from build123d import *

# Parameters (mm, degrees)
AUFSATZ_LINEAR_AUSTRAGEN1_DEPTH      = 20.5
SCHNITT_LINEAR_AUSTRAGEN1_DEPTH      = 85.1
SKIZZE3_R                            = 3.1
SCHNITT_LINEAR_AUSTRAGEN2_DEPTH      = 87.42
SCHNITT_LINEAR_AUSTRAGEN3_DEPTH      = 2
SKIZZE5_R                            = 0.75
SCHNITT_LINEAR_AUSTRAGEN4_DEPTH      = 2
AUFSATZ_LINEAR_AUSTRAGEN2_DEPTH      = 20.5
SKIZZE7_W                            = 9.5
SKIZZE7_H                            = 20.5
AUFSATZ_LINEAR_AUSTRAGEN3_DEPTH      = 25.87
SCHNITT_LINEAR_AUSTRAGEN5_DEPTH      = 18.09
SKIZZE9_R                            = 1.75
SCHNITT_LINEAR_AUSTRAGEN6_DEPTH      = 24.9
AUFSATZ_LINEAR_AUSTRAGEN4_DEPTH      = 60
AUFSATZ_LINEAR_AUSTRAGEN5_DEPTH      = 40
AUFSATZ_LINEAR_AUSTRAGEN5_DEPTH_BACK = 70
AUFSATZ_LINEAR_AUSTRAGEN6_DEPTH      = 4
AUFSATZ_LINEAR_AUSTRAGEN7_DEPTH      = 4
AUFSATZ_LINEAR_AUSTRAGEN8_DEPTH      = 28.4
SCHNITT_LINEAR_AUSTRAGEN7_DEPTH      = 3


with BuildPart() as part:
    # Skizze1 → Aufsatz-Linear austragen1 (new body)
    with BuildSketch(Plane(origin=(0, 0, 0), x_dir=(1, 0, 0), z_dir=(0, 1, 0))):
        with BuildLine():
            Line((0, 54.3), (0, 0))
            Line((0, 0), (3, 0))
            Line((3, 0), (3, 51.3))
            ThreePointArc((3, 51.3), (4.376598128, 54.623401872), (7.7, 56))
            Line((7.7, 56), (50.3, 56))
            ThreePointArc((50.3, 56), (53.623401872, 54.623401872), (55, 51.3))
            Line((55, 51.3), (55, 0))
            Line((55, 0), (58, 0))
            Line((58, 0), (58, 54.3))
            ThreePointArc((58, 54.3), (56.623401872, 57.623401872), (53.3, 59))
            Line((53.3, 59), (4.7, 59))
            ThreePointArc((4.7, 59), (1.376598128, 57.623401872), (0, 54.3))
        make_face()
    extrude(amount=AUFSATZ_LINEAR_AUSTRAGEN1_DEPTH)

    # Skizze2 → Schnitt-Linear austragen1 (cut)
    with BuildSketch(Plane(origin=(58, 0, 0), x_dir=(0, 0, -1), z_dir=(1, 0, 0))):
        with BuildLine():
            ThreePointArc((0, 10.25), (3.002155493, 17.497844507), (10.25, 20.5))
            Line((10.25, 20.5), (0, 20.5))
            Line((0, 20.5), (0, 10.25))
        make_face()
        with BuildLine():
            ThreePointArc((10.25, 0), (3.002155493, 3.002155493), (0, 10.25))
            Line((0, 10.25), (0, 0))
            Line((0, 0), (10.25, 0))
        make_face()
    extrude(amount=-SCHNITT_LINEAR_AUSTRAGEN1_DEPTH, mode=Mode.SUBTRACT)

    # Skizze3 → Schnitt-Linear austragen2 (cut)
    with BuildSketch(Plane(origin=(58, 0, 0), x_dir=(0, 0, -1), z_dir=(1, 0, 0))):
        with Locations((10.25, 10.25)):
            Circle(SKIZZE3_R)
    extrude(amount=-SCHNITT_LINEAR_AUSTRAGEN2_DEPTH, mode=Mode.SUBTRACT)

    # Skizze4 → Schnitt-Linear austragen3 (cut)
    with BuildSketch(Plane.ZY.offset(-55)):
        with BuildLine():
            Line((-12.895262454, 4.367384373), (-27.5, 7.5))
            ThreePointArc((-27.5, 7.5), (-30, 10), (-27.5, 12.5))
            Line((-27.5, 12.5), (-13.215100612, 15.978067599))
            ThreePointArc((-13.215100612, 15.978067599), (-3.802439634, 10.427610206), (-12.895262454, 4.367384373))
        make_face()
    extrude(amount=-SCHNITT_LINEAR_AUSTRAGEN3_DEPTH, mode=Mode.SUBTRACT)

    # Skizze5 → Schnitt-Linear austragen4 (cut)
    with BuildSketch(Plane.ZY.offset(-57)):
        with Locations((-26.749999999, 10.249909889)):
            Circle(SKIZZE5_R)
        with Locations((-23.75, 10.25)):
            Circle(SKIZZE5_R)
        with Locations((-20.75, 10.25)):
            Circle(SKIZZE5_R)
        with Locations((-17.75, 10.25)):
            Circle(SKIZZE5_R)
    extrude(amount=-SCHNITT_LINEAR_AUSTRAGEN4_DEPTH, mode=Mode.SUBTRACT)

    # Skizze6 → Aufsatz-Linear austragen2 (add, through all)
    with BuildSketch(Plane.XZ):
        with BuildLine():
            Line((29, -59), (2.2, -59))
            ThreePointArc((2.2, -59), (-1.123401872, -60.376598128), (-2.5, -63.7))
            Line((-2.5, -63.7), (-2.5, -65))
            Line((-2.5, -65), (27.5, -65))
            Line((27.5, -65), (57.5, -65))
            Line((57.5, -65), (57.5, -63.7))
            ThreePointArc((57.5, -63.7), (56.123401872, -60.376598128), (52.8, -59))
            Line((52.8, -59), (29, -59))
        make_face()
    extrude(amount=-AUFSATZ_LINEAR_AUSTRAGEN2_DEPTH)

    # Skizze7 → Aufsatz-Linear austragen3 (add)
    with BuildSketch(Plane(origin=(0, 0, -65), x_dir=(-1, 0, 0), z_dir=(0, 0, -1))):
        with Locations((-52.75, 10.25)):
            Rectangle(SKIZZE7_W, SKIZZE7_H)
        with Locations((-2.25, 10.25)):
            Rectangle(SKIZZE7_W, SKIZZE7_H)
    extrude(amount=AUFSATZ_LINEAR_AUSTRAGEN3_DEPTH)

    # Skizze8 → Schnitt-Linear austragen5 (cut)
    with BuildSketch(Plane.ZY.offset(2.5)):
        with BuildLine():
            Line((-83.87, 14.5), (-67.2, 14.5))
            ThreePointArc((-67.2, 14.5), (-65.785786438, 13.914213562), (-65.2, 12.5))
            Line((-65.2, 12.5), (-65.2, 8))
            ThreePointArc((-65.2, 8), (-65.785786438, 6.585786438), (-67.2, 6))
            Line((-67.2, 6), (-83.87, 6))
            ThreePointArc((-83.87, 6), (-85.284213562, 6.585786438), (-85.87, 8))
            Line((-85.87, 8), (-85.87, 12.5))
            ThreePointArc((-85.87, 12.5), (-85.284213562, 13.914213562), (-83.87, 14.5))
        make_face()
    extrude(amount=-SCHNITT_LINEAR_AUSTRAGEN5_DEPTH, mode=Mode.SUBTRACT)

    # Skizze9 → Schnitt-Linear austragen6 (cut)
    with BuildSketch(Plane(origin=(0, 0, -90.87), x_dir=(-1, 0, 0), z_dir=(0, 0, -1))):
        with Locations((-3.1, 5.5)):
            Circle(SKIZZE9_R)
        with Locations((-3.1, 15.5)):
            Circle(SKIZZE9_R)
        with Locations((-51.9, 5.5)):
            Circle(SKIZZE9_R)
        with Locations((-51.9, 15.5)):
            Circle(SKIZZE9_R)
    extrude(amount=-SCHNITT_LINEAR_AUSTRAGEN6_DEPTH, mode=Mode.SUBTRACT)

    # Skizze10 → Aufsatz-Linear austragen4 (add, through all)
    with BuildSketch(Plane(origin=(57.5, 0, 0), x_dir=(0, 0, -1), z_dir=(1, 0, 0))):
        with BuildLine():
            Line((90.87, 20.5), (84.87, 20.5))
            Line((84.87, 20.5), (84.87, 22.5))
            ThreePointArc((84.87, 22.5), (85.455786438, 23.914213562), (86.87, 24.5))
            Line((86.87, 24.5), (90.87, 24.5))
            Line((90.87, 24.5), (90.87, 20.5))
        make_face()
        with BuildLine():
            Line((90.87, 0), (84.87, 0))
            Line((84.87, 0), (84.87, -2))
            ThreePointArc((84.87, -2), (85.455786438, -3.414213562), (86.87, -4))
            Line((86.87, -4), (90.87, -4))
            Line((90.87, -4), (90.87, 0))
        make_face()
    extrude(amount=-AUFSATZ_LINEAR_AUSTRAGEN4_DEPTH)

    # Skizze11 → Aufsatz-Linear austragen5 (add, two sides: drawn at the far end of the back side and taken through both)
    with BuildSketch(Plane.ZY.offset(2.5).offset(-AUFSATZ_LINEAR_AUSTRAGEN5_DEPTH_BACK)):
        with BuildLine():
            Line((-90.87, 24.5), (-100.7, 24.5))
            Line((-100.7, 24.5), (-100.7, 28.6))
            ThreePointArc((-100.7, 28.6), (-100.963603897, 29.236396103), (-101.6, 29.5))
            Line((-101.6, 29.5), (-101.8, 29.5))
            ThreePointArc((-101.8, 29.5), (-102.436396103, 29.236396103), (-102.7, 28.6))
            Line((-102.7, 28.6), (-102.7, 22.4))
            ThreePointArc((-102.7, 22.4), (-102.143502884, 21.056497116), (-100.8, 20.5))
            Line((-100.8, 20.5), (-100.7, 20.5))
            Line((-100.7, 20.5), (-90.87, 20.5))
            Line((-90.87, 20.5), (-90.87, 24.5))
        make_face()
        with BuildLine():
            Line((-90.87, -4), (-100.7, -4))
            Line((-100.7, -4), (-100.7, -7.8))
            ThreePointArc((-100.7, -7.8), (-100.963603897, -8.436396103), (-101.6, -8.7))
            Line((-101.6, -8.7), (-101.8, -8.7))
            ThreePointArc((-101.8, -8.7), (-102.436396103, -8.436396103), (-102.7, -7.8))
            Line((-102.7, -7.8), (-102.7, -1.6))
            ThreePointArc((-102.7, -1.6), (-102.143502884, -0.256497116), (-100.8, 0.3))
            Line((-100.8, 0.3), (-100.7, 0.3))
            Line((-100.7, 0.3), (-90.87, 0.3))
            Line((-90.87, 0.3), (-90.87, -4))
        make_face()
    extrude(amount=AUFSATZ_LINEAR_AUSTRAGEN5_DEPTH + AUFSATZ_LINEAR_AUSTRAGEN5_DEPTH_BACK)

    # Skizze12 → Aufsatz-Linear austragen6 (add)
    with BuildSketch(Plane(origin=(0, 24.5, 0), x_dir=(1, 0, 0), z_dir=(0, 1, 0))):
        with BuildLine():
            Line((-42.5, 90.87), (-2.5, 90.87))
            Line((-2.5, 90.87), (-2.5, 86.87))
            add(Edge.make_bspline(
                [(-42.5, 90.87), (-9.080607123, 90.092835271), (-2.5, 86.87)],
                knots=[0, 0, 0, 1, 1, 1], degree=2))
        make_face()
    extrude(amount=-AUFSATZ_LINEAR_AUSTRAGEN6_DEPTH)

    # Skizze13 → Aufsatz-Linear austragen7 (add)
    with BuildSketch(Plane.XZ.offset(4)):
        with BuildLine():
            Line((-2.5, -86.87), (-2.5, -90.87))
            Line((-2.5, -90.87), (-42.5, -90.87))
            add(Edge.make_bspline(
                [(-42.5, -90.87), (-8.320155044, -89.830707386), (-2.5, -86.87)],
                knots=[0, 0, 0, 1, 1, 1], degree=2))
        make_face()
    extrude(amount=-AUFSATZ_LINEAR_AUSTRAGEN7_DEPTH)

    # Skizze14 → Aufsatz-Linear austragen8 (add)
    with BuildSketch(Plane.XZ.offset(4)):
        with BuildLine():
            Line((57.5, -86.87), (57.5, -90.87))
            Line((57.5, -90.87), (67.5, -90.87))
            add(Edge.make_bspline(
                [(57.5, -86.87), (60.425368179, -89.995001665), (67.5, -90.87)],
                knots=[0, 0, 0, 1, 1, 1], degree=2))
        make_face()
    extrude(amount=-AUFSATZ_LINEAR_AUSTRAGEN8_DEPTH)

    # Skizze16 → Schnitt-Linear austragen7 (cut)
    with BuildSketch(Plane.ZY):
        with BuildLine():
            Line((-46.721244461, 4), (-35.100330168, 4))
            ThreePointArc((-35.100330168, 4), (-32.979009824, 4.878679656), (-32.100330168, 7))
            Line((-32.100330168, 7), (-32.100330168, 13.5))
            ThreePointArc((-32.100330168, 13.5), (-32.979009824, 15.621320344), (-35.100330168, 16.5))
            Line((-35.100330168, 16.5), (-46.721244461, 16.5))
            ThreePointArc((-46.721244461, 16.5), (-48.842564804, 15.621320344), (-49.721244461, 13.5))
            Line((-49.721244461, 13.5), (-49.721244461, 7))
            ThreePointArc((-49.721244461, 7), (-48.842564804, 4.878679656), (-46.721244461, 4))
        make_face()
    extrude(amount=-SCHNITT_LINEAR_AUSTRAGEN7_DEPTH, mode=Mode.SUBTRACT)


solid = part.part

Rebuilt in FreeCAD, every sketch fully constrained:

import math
import FreeCAD as App
import Part
import Sketcher

V = App.Vector

doc = App.newDocument("Part")
body = doc.addObject("PartDesign::Body", "Body")

sketch1 = body.newObject("Sketcher::SketchObject", "Sketch")
sketch1.AttachmentSupport = (doc.getObject("XZ_Plane"), [""])
sketch1.MapMode = "FlatFace"
sketch1.addGeometry(Part.LineSegment(V(0, -54.3, 0), V(0, 0, 0)), False)
sketch1.addGeometry(Part.LineSegment(V(0, 0, 0), V(3, 0, 0)), False)
sketch1.addGeometry(Part.LineSegment(V(3, 0, 0), V(3, -51.3, 0)), False)
sketch1.addGeometry(Part.ArcOfCircle(Part.Circle(V(7.7, -51.3, 0), V(0, 0, 1), 4.7), math.radians(180), math.radians(270)), False)
sketch1.addGeometry(Part.LineSegment(V(7.7, -56, 0), V(50.3, -56, 0)), False)
sketch1.addGeometry(Part.ArcOfCircle(Part.Circle(V(50.3, -51.3, 0), V(0, 0, 1), 4.7), math.radians(-90), math.radians(0)), False)
sketch1.addGeometry(Part.LineSegment(V(55, -51.3, 0), V(55, 0, 0)), False)
sketch1.addGeometry(Part.LineSegment(V(55, 0, 0), V(58, 0, 0)), False)
sketch1.addGeometry(Part.LineSegment(V(58, 0, 0), V(58, -54.3, 0)), False)
sketch1.addGeometry(Part.ArcOfCircle(Part.Circle(V(53.3, -54.3, 0), V(0, 0, 1), 4.7), math.radians(-90), math.radians(0)), False)
sketch1.addGeometry(Part.LineSegment(V(53.3, -59, 0), V(4.7, -59, 0)), False)
sketch1.addGeometry(Part.ArcOfCircle(Part.Circle(V(4.7, -54.3, 0), V(0, 0, 1), 4.7), math.radians(180), math.radians(270)), False)
sketch1.addConstraint(Sketcher.Constraint("Coincident", 0, 2, 1, 1))
sketch1.addConstraint(Sketcher.Constraint("Coincident", 1, 2, 2, 1))
sketch1.addConstraint(Sketcher.Constraint("Tangent", 2, 2, 3, 1))
sketch1.addConstraint(Sketcher.Constraint("Tangent", 3, 2, 4, 1))
sketch1.addConstraint(Sketcher.Constraint("Tangent", 4, 2, 5, 1))
sketch1.addConstraint(Sketcher.Constraint("Tangent", 5, 2, 6, 1))
sketch1.addConstraint(Sketcher.Constraint("Coincident", 6, 2, 7, 1))
sketch1.addConstraint(Sketcher.Constraint("Coincident", 7, 2, 8, 1))
sketch1.addConstraint(Sketcher.Constraint("Tangent", 8, 2, 9, 2))
sketch1.addConstraint(Sketcher.Constraint("Tangent", 9, 1, 10, 1))
sketch1.addConstraint(Sketcher.Constraint("Tangent", 10, 2, 11, 2))
sketch1.addConstraint(Sketcher.Constraint("Tangent", 11, 1, 0, 1))
sketch1.addConstraint(Sketcher.Constraint("Vertical", 0))
sketch1.addConstraint(Sketcher.Constraint("Horizontal", 1))
sketch1.addConstraint(Sketcher.Constraint("Vertical", 2))
sketch1.addConstraint(Sketcher.Constraint("Horizontal", 4))
sketch1.addConstraint(Sketcher.Constraint("Vertical", 6))
sketch1.addConstraint(Sketcher.Constraint("Horizontal", 7))
sketch1.addConstraint(Sketcher.Constraint("Vertical", 8))
sketch1.addConstraint(Sketcher.Constraint("Horizontal", 10))
sketch1.addConstraint(Sketcher.Constraint("Coincident", 0, 2, -1, 1))
sketch1.addConstraint(Sketcher.Constraint("Equal", 3, 5))
sketch1.addConstraint(Sketcher.Constraint("Equal", 5, 9))
sketch1.addConstraint(Sketcher.Constraint("Equal", 9, 11))
sketch1.addConstraint(Sketcher.Constraint("PointOnObject", 6, 2, -1))
sketch1.addConstraint(Sketcher.Constraint("Equal", 1, 7))
sketch1.addConstraint(Sketcher.Constraint("Radius", 3, 4.7))
sketch1.addConstraint(Sketcher.Constraint("DistanceX", 1, 1, 1, 2, 3.0))
sketch1.addConstraint(Sketcher.Constraint("DistanceX", 4, 1, 4, 2, 42.6))
sketch1.addConstraint(Sketcher.Constraint("DistanceY", 0, 1, 0, 2, 54.3))
sketch1.addConstraint(Sketcher.Constraint("DistanceY", 2, 2, 2, 1, 51.3))
pad1 = body.newObject("PartDesign::Pad", "Pad")
pad1.Profile = sketch1
pad1.Length = 20.5
pad1.Reversed = True

sketch2 = body.newObject("Sketcher::SketchObject", "Sketch001")
sketch2.AttachmentSupport = (doc.getObject("YZ_Plane"), [""])
sketch2.MapMode = "FlatFace"
sketch2.AttachmentOffset = App.Placement(V(0, 0, 58), App.Rotation())
sketch2.addGeometry(Part.ArcOfCircle(Part.Circle(V(10, -10, 0), V(0, 0, 1), 10), math.radians(0), math.radians(90)), False)
sketch2.addGeometry(Part.LineSegment(V(20, -10, 0), V(20, 0, 0)), False)
sketch2.addGeometry(Part.LineSegment(V(20, 0, 0), V(10, 0, 0)), False)
sketch2.addGeometry(Part.ArcOfCircle(Part.Circle(V(10, -10, 0), V(0, 0, 1), 10), math.radians(90), math.radians(180)), False)
sketch2.addGeometry(Part.LineSegment(V(10, 0, 0), V(0, 0, 0)), False)
sketch2.addGeometry(Part.LineSegment(V(0, 0, 0), V(0, -10, 0)), False)
sketch2.addConstraint(Sketcher.Constraint("Tangent", 0, 1, 1, 1))
sketch2.addConstraint(Sketcher.Constraint("Coincident", 1, 2, 2, 1))
sketch2.addConstraint(Sketcher.Constraint("Tangent", 2, 2, 0, 2))
sketch2.addConstraint(Sketcher.Constraint("Tangent", 3, 1, 4, 1))
sketch2.addConstraint(Sketcher.Constraint("Coincident", 4, 2, 5, 1))
sketch2.addConstraint(Sketcher.Constraint("Tangent", 5, 2, 3, 2))
sketch2.addConstraint(Sketcher.Constraint("Vertical", 1))
sketch2.addConstraint(Sketcher.Constraint("Horizontal", 2))
sketch2.addConstraint(Sketcher.Constraint("Horizontal", 4))
sketch2.addConstraint(Sketcher.Constraint("Vertical", 5))
sketch2.addConstraint(Sketcher.Constraint("Coincident", 4, 2, -1, 1))
sketch2.addConstraint(Sketcher.Constraint("Coincident", 3, 3, 0, 3))
sketch2.addConstraint(Sketcher.Constraint("Equal", 0, 3))
sketch2.addConstraint(Sketcher.Constraint("Radius", 0, 10.25))
pocket1 = body.newObject("PartDesign::Pocket", "Pocket")
pocket1.Profile = sketch2
pocket1.Length = 85.1

sketch3 = body.newObject("Sketcher::SketchObject", "Sketch002")
sketch3.AttachmentSupport = (doc.getObject("YZ_Plane"), [""])
sketch3.MapMode = "FlatFace"
sketch3.AttachmentOffset = App.Placement(V(0, 0, 58), App.Rotation())
sketch3.addGeometry(Part.Circle(V(10.2, -10.2, 0), V(0, 0, 1), 3.1), False)
sketch3.addConstraint(Sketcher.Constraint("Diameter", 0, 6.2))
sketch3.addConstraint(Sketcher.Constraint("DistanceX", -1, 1, 0, 3, 10.25))
sketch3.addConstraint(Sketcher.Constraint("DistanceY", 0, 3, -1, 1, 10.25))
pocket2 = body.newObject("PartDesign::Pocket", "Pocket001")
pocket2.Profile = sketch3
pocket2.Length = 87.42

sketch4 = body.newObject("Sketcher::SketchObject", "Sketch003")
sketch4.AttachmentSupport = (doc.getObject("YZ_Plane"), [""])
sketch4.MapMode = "FlatFace"
sketch4.AttachmentOffset = App.Placement(V(0, 0, 55), App.Rotation())
sketch4.addGeometry(Part.LineSegment(V(7.5, -27.5, 0), V(4.4, -12.9, 0)), False)
sketch4.addGeometry(Part.ArcOfCircle(Part.Circle(V(10.2, -10.2, 0), V(0, 0, 1), 6.5), math.radians(-27), math.radians(204)), False)
sketch4.addGeometry(Part.LineSegment(V(16, -13.2, 0), V(12.5, -27.5, 0)), False)
sketch4.addGeometry(Part.ArcOfCircle(Part.Circle(V(10, -27.5, 0), V(0, 0, 1), 2.5), math.radians(180), math.radians(360)), False)
sketch4.addConstraint(Sketcher.Constraint("Coincident", 0, 2, 1, 2))
sketch4.addConstraint(Sketcher.Constraint("Coincident", 1, 1, 2, 1))
sketch4.addConstraint(Sketcher.Constraint("Coincident", 2, 2, 3, 2))
sketch4.addConstraint(Sketcher.Constraint("Coincident", 3, 1, 0, 1))
sketch4.addConstraint(Sketcher.Constraint("Horizontal", 3, 3, 2, 2))
sketch4.addConstraint(Sketcher.Constraint("Horizontal", 2, 2, 3, 1))
sketch4.addConstraint(Sketcher.Constraint("Radius", 3, 2.5))
sketch4.addConstraint(Sketcher.Constraint("DistanceX", -1, 1, 3, 3, 10.0))
sketch4.addConstraint(Sketcher.Constraint("DistanceY", 3, 3, -1, 1, 27.5))
sketch4.addConstraint(Sketcher.Constraint("DistanceX", -1, 1, 1, 3, 10.25))
sketch4.addConstraint(Sketcher.Constraint("DistanceY", 1, 3, -1, 1, 10.25))
sketch4.addConstraint(Sketcher.Constraint("Radius", 1, 6.450006))
sketch4.addConstraint(Sketcher.Constraint("DistanceY", 1, 1, -1, 1, 13.215101))
sketch4.addConstraint(Sketcher.Constraint("DistanceY", 1, 1, 0, 2, 0.319838))
pocket3 = body.newObject("PartDesign::Pocket", "Pocket002")
pocket3.Profile = sketch4
pocket3.Length = 2
pocket3.Reversed = True

sketch5 = body.newObject("Sketcher::SketchObject", "Sketch004")
sketch5.AttachmentSupport = (doc.getObject("YZ_Plane"), [""])
sketch5.MapMode = "FlatFace"
sketch5.AttachmentOffset = App.Placement(V(0, 0, 57), App.Rotation())
sketch5.addGeometry(Part.Circle(V(10.2, -26.7, 0), V(0, 0, 1), 0.8), False)
sketch5.addGeometry(Part.Circle(V(10.2, -23.8, 0), V(0, 0, 1), 0.8), False)
sketch5.addGeometry(Part.Circle(V(10.2, -20.8, 0), V(0, 0, 1), 0.8), False)
sketch5.addGeometry(Part.Circle(V(10.2, -17.8, 0), V(0, 0, 1), 0.8), False)
sketch5.addConstraint(Sketcher.Constraint("Equal", 0, 1))
sketch5.addConstraint(Sketcher.Constraint("Equal", 1, 2))
sketch5.addConstraint(Sketcher.Constraint("Equal", 2, 3))
sketch5.addConstraint(Sketcher.Constraint("Vertical", 1, 3, 2, 3))
sketch5.addConstraint(Sketcher.Constraint("Vertical", 2, 3, 3, 3))
sketch5.addConstraint(Sketcher.Constraint("Diameter", 0, 1.5))
sketch5.addConstraint(Sketcher.Constraint("DistanceY", 0, 3, 1, 3, 3.0))
sketch5.addConstraint(Sketcher.Constraint("DistanceY", 1, 3, 2, 3, 3.0))
sketch5.addConstraint(Sketcher.Constraint("DistanceY", 2, 3, 3, 3, 3.0))
sketch5.addConstraint(Sketcher.Constraint("DistanceY", 0, 3, -1, 1, 26.75))
sketch5.addConstraint(Sketcher.Constraint("DistanceX", -1, 1, 1, 3, 10.25))
sketch5.addConstraint(Sketcher.Constraint("DistanceX", -1, 1, 0, 3, 10.24991))
pocket4 = body.newObject("PartDesign::Pocket", "Pocket003")
pocket4.Profile = sketch5
pocket4.Length = 2
pocket4.Reversed = True

sketch6 = body.newObject("Sketcher::SketchObject", "Sketch005")
sketch6.AttachmentSupport = (doc.getObject("XZ_Plane"), [""])
sketch6.MapMode = "FlatFace"
sketch6.addGeometry(Part.ArcOfCircle(Part.Circle(V(2.2, -63.7, 0), V(0, 0, 1), 4.7), math.radians(90), math.radians(180)), False)
sketch6.addGeometry(Part.LineSegment(V(-2.5, -63.7, 0), V(-2.5, -65, 0)), False)
sketch6.addGeometry(Part.LineSegment(V(-2.5, -65, 0), V(57.5, -65, 0)), False)
sketch6.addGeometry(Part.LineSegment(V(57.5, -65, 0), V(57.5, -63.7, 0)), False)
sketch6.addGeometry(Part.ArcOfCircle(Part.Circle(V(52.8, -63.7, 0), V(0, 0, 1), 4.7), math.radians(0), math.radians(90)), False)
sketch6.addGeometry(Part.LineSegment(V(52.8, -59, 0), V(2.2, -59, 0)), False)
sketch6.addConstraint(Sketcher.Constraint("Tangent", 0, 2, 1, 1))
sketch6.addConstraint(Sketcher.Constraint("Coincident", 1, 2, 2, 1))
sketch6.addConstraint(Sketcher.Constraint("Coincident", 2, 2, 3, 1))
sketch6.addConstraint(Sketcher.Constraint("Tangent", 3, 2, 4, 1))
sketch6.addConstraint(Sketcher.Constraint("Tangent", 4, 2, 5, 1))
sketch6.addConstraint(Sketcher.Constraint("Tangent", 5, 2, 0, 1))
sketch6.addConstraint(Sketcher.Constraint("Vertical", 1))
sketch6.addConstraint(Sketcher.Constraint("Horizontal", 2))
sketch6.addConstraint(Sketcher.Constraint("Vertical", 3))
sketch6.addConstraint(Sketcher.Constraint("Horizontal", 5))
sketch6.addConstraint(Sketcher.Constraint("Equal", 0, 4))
sketch6.addConstraint(Sketcher.Constraint("Radius", 0, 4.7))
sketch6.addConstraint(Sketcher.Constraint("DistanceX", 2, 1, 2, 2, 60.0))
sketch6.addConstraint(Sketcher.Constraint("DistanceY", 1, 2, 1, 1, 1.3))
sketch6.addConstraint(Sketcher.Constraint("DistanceY", 1, 2, -1, 1, 65.0))
sketch6.addConstraint(Sketcher.Constraint("DistanceX", -1, 1, 0, 3, 2.2))
pad2 = body.newObject("PartDesign::Pad", "Pad001")
pad2.Profile = sketch6
pad2.Length = 20.5
pad2.Reversed = True

sketch7 = body.newObject("Sketcher::SketchObject", "Sketch006")
sketch7.AttachmentSupport = (doc.getObject("XY_Plane"), [""])
sketch7.MapMode = "FlatFace"
sketch7.AttachmentOffset = App.Placement(V(0, 0, -65), App.Rotation())
sketch7.addGeometry(Part.LineSegment(V(58, 20, 0), V(58, 0, 0)), False)
sketch7.addGeometry(Part.LineSegment(V(58, 0, 0), V(48, 0, 0)), False)
sketch7.addGeometry(Part.LineSegment(V(48, 0, 0), V(48, 20, 0)), False)
sketch7.addGeometry(Part.LineSegment(V(48, 20, 0), V(58, 20, 0)), False)
sketch7.addGeometry(Part.LineSegment(V(7, 20, 0), V(7, 0, 0)), False)
sketch7.addGeometry(Part.LineSegment(V(7, 0, 0), V(-2, 0, 0)), False)
sketch7.addGeometry(Part.LineSegment(V(-2, 0, 0), V(-2, 20, 0)), False)
sketch7.addGeometry(Part.LineSegment(V(-2, 20, 0), V(7, 20, 0)), False)
sketch7.addConstraint(Sketcher.Constraint("Coincident", 0, 2, 1, 1))
sketch7.addConstraint(Sketcher.Constraint("Coincident", 1, 2, 2, 1))
sketch7.addConstraint(Sketcher.Constraint("Coincident", 2, 2, 3, 1))
sketch7.addConstraint(Sketcher.Constraint("Coincident", 3, 2, 0, 1))
sketch7.addConstraint(Sketcher.Constraint("Coincident", 4, 2, 5, 1))
sketch7.addConstraint(Sketcher.Constraint("Coincident", 5, 2, 6, 1))
sketch7.addConstraint(Sketcher.Constraint("Coincident", 6, 2, 7, 1))
sketch7.addConstraint(Sketcher.Constraint("Coincident", 7, 2, 4, 1))
sketch7.addConstraint(Sketcher.Constraint("Vertical", 0))
sketch7.addConstraint(Sketcher.Constraint("Horizontal", 1))
sketch7.addConstraint(Sketcher.Constraint("Vertical", 2))
sketch7.addConstraint(Sketcher.Constraint("Horizontal", 3))
sketch7.addConstraint(Sketcher.Constraint("Vertical", 4))
sketch7.addConstraint(Sketcher.Constraint("Horizontal", 5))
sketch7.addConstraint(Sketcher.Constraint("Vertical", 6))
sketch7.addConstraint(Sketcher.Constraint("Horizontal", 7))
sketch7.addConstraint(Sketcher.Constraint("PointOnObject", 0, 2, -1))
sketch7.addConstraint(Sketcher.Constraint("PointOnObject", 4, 2, -1))
sketch7.addConstraint(Sketcher.Constraint("Horizontal", 3, 2, 6, 2))
sketch7.addConstraint(Sketcher.Constraint("Equal", 3, 5))
sketch7.addConstraint(Sketcher.Constraint("DistanceX", 1, 2, 1, 1, 9.5))
sketch7.addConstraint(Sketcher.Constraint("DistanceY", 0, 2, 0, 1, 20.5))
sketch7.addConstraint(Sketcher.Constraint("DistanceX", -1, 1, 1, 2, 48.0))
sketch7.addConstraint(Sketcher.Constraint("DistanceX", -1, 1, 4, 2, 7.0))
pad3 = body.newObject("PartDesign::Pad", "Pad002")
pad3.Profile = sketch7
pad3.Length = 25.87
pad3.Reversed = True

sketch8 = body.newObject("Sketcher::SketchObject", "Sketch007")
sketch8.AttachmentSupport = (doc.getObject("YZ_Plane"), [""])
sketch8.MapMode = "FlatFace"
sketch8.AttachmentOffset = App.Placement(V(0, 0, -2.5), App.Rotation())
sketch8.addGeometry(Part.LineSegment(V(14.5, -67.2, 0), V(14.5, -83.9, 0)), False)
sketch8.addGeometry(Part.ArcOfCircle(Part.Circle(V(12.5, -83.9, 0), V(0, 0, 1), 2), math.radians(-90), math.radians(0)), False)
sketch8.addGeometry(Part.LineSegment(V(12.5, -85.9, 0), V(8, -85.9, 0)), False)
sketch8.addGeometry(Part.ArcOfCircle(Part.Circle(V(8, -83.9, 0), V(0, 0, 1), 2), math.radians(-180), math.radians(-90)), False)
sketch8.addGeometry(Part.LineSegment(V(6, -83.9, 0), V(6, -67.2, 0)), False)
sketch8.addGeometry(Part.ArcOfCircle(Part.Circle(V(8, -67.2, 0), V(0, 0, 1), 2), math.radians(90), math.radians(180)), False)
sketch8.addGeometry(Part.LineSegment(V(8, -65.2, 0), V(12.5, -65.2, 0)), False)
sketch8.addGeometry(Part.ArcOfCircle(Part.Circle(V(12.5, -67.2, 0), V(0, 0, 1), 2), math.radians(0), math.radians(90)), False)
sketch8.addConstraint(Sketcher.Constraint("Tangent", 0, 2, 1, 2))
sketch8.addConstraint(Sketcher.Constraint("Tangent", 1, 1, 2, 1))
sketch8.addConstraint(Sketcher.Constraint("Tangent", 2, 2, 3, 2))
sketch8.addConstraint(Sketcher.Constraint("Tangent", 3, 1, 4, 1))
sketch8.addConstraint(Sketcher.Constraint("Tangent", 4, 2, 5, 2))
sketch8.addConstraint(Sketcher.Constraint("Tangent", 5, 1, 6, 1))
sketch8.addConstraint(Sketcher.Constraint("Tangent", 6, 2, 7, 2))
sketch8.addConstraint(Sketcher.Constraint("Tangent", 7, 1, 0, 1))
sketch8.addConstraint(Sketcher.Constraint("Vertical", 0))
sketch8.addConstraint(Sketcher.Constraint("Horizontal", 2))
sketch8.addConstraint(Sketcher.Constraint("Vertical", 4))
sketch8.addConstraint(Sketcher.Constraint("Horizontal", 6))
sketch8.addConstraint(Sketcher.Constraint("Equal", 1, 3))
sketch8.addConstraint(Sketcher.Constraint("Equal", 3, 5))
sketch8.addConstraint(Sketcher.Constraint("Equal", 5, 7))
sketch8.addConstraint(Sketcher.Constraint("Radius", 1, 2.0))
sketch8.addConstraint(Sketcher.Constraint("DistanceX", 2, 2, 2, 1, 4.5))
sketch8.addConstraint(Sketcher.Constraint("DistanceX", -1, 1, 3, 3, 8.0))
sketch8.addConstraint(Sketcher.Constraint("DistanceY", 0, 2, 0, 1, 16.67))
sketch8.addConstraint(Sketcher.Constraint("DistanceY", 5, 3, -1, 1, 67.2))
pocket5 = body.newObject("PartDesign::Pocket", "Pocket004")
pocket5.Profile = sketch8
pocket5.Length = 18.09
pocket5.Reversed = True

sketch9 = body.newObject("Sketcher::SketchObject", "Sketch008")
sketch9.AttachmentSupport = (doc.getObject("XY_Plane"), [""])
sketch9.MapMode = "FlatFace"
sketch9.AttachmentOffset = App.Placement(V(0, 0, -90.87), App.Rotation())
sketch9.addGeometry(Part.Circle(V(3.1, 5.5, 0), V(0, 0, 1), 1.8), False)
sketch9.addGeometry(Part.Circle(V(3.1, 15.5, 0), V(0, 0, 1), 1.8), False)
sketch9.addGeometry(Part.Circle(V(51.9, 5.5, 0), V(0, 0, 1), 1.8), False)
sketch9.addGeometry(Part.Circle(V(51.9, 15.5, 0), V(0, 0, 1), 1.8), False)
sketch9.addConstraint(Sketcher.Constraint("Equal", 0, 1))
sketch9.addConstraint(Sketcher.Constraint("Equal", 1, 2))
sketch9.addConstraint(Sketcher.Constraint("Equal", 2, 3))
sketch9.addConstraint(Sketcher.Constraint("Horizontal", 0, 3, 2, 3))
sketch9.addConstraint(Sketcher.Constraint("Horizontal", 1, 3, 3, 3))
sketch9.addConstraint(Sketcher.Constraint("Vertical", 0, 3, 1, 3))
sketch9.addConstraint(Sketcher.Constraint("Vertical", 2, 3, 3, 3))
sketch9.addConstraint(Sketcher.Constraint("Diameter", 0, 3.5))
sketch9.addConstraint(Sketcher.Constraint("DistanceY", 0, 3, 1, 3, 10.0))
sketch9.addConstraint(Sketcher.Constraint("DistanceX", -1, 1, 0, 3, 3.1))
sketch9.addConstraint(Sketcher.Constraint("DistanceY", -1, 1, 0, 3, 5.5))
sketch9.addConstraint(Sketcher.Constraint("DistanceX", -1, 1, 2, 3, 51.9))
pocket6 = body.newObject("PartDesign::Pocket", "Pocket005")
pocket6.Profile = sketch9
pocket6.Length = 24.9
pocket6.Reversed = True

sketch10 = body.newObject("Sketcher::SketchObject", "Sketch009")
sketch10.AttachmentSupport = (doc.getObject("YZ_Plane"), [""])
sketch10.MapMode = "FlatFace"
sketch10.AttachmentOffset = App.Placement(V(0, 0, 57.5), App.Rotation())
sketch10.addGeometry(Part.LineSegment(V(20.5, -84.9, 0), V(20.5, -90.9, 0)), False)
sketch10.addGeometry(Part.LineSegment(V(20.5, -90.9, 0), V(24.5, -90.9, 0)), False)
sketch10.addGeometry(Part.LineSegment(V(24.5, -90.9, 0), V(24.5, -86.9, 0)), False)
sketch10.addGeometry(Part.ArcOfCircle(Part.Circle(V(22.5, -86.9, 0), V(0, 0, 1), 2), math.radians(0), math.radians(90)), False)
sketch10.addGeometry(Part.LineSegment(V(22.5, -84.9, 0), V(20.5, -84.9, 0)), False)
sketch10.addGeometry(Part.LineSegment(V(0, -90.9, 0), V(0, -84.9, 0)), False)
sketch10.addGeometry(Part.LineSegment(V(0, -84.9, 0), V(-2, -84.9, 0)), False)
sketch10.addGeometry(Part.ArcOfCircle(Part.Circle(V(-2, -86.9, 0), V(0, 0, 1), 2), math.radians(90), math.radians(180)), False)
sketch10.addGeometry(Part.LineSegment(V(-4, -86.9, 0), V(-4, -90.9, 0)), False)
sketch10.addGeometry(Part.LineSegment(V(-4, -90.9, 0), V(0, -90.9, 0)), False)
sketch10.addConstraint(Sketcher.Constraint("Coincident", 0, 2, 1, 1))
sketch10.addConstraint(Sketcher.Constraint("Coincident", 1, 2, 2, 1))
sketch10.addConstraint(Sketcher.Constraint("Tangent", 2, 2, 3, 1))
sketch10.addConstraint(Sketcher.Constraint("Tangent", 3, 2, 4, 1))
sketch10.addConstraint(Sketcher.Constraint("Coincident", 4, 2, 0, 1))
sketch10.addConstraint(Sketcher.Constraint("Coincident", 5, 2, 6, 1))
sketch10.addConstraint(Sketcher.Constraint("Tangent", 6, 2, 7, 1))
sketch10.addConstraint(Sketcher.Constraint("Tangent", 7, 2, 8, 1))
sketch10.addConstraint(Sketcher.Constraint("Coincident", 8, 2, 9, 1))
sketch10.addConstraint(Sketcher.Constraint("Coincident", 9, 2, 5, 1))
sketch10.addConstraint(Sketcher.Constraint("Vertical", 0))
sketch10.addConstraint(Sketcher.Constraint("Horizontal", 1))
sketch10.addConstraint(Sketcher.Constraint("Vertical", 2))
sketch10.addConstraint(Sketcher.Constraint("Horizontal", 4))
sketch10.addConstraint(Sketcher.Constraint("Vertical", 5))
sketch10.addConstraint(Sketcher.Constraint("Horizontal", 6))
sketch10.addConstraint(Sketcher.Constraint("Vertical", 8))
sketch10.addConstraint(Sketcher.Constraint("Horizontal", 9))
sketch10.addConstraint(Sketcher.Constraint("Equal", 3, 7))
sketch10.addConstraint(Sketcher.Constraint("PointOnObject", 5, 2, -2))
sketch10.addConstraint(Sketcher.Constraint("Horizontal", 3, 3, 7, 3))
sketch10.addConstraint(Sketcher.Constraint("Horizontal", 1, 2, 8, 2))
sketch10.addConstraint(Sketcher.Constraint("Equal", 4, 6))
sketch10.addConstraint(Sketcher.Constraint("Equal", 9, 2))
sketch10.addConstraint(Sketcher.Constraint("Radius", 3, 2.0))
sketch10.addConstraint(Sketcher.Constraint("DistanceX", 1, 1, 1, 2, 4.0))
sketch10.addConstraint(Sketcher.Constraint("DistanceX", -1, 1, 3, 3, 22.5))
sketch10.addConstraint(Sketcher.Constraint("DistanceY", 3, 3, -1, 1, 86.87))
pad4 = body.newObject("PartDesign::Pad", "Pad003")
pad4.Profile = sketch10
pad4.Type = "UpToLast"
pad4.Reversed = True

sketch11 = body.newObject("Sketcher::SketchObject", "Sketch010")
sketch11.AttachmentSupport = (doc.getObject("YZ_Plane"), [""])
sketch11.MapMode = "FlatFace"
sketch11.AttachmentOffset = App.Placement(V(0, 0, -2.5), App.Rotation())
sketch11.addGeometry(Part.LineSegment(V(24.5, -90.87, 0), V(24.5, -100.7, 0)), False)
sketch11.addGeometry(Part.LineSegment(V(24.5, -100.7, 0), V(28.6, -100.7, 0)), False)
sketch11.addGeometry(Part.ArcOfCircle(Part.Circle(V(28.6, -101.6, 0), V(0, 0, 1), 0.9), math.radians(0), math.radians(90)), False)
sketch11.addGeometry(Part.LineSegment(V(29.5, -101.6, 0), V(29.5, -101.8, 0)), False)
sketch11.addGeometry(Part.ArcOfCircle(Part.Circle(V(28.6, -101.8, 0), V(0, 0, 1), 0.9), math.radians(-90), math.radians(0)), False)
sketch11.addGeometry(Part.LineSegment(V(28.6, -102.7, 0), V(22.4, -102.7, 0)), False)
sketch11.addGeometry(Part.ArcOfCircle(Part.Circle(V(22.4, -100.8, 0), V(0, 0, 1), 1.9), math.radians(-180), math.radians(-90)), False)
sketch11.addGeometry(Part.LineSegment(V(20.5, -100.8, 0), V(20.5, -90.87, 0)), False)
sketch11.addGeometry(Part.LineSegment(V(20.5, -90.87, 0), V(24.5, -90.87, 0)), False)
sketch11.addGeometry(Part.LineSegment(V(-4, -100.7, 0), V(-4, -90.87, 0)), False)
sketch11.addGeometry(Part.LineSegment(V(-4, -90.87, 0), V(0.3, -90.87, 0)), False)
sketch11.addGeometry(Part.LineSegment(V(0.3, -90.87, 0), V(0.3, -100.8, 0)), False)
sketch11.addGeometry(Part.ArcOfCircle(Part.Circle(V(-1.6, -100.8, 0), V(0, 0, 1), 1.9), math.radians(-90), math.radians(0)), False)
sketch11.addGeometry(Part.LineSegment(V(-1.6, -102.7, 0), V(-7.8, -102.7, 0)), False)
sketch11.addGeometry(Part.ArcOfCircle(Part.Circle(V(-7.8, -101.8, 0), V(0, 0, 1), 0.9), math.radians(180), math.radians(270)), False)
sketch11.addGeometry(Part.LineSegment(V(-8.7, -101.8, 0), V(-8.7, -101.6, 0)), False)
sketch11.addGeometry(Part.ArcOfCircle(Part.Circle(V(-7.8, -101.6, 0), V(0, 0, 1), 0.9), math.radians(90), math.radians(180)), False)
sketch11.addGeometry(Part.LineSegment(V(-7.8, -100.7, 0), V(-4, -100.7, 0)), False)
sketch11.addConstraint(Sketcher.Constraint("Coincident", 0, 2, 1, 1))
sketch11.addConstraint(Sketcher.Constraint("Tangent", 1, 2, 2, 2))
sketch11.addConstraint(Sketcher.Constraint("Tangent", 2, 1, 3, 1))
sketch11.addConstraint(Sketcher.Constraint("Tangent", 3, 2, 4, 2))
sketch11.addConstraint(Sketcher.Constraint("Tangent", 4, 1, 5, 1))
sketch11.addConstraint(Sketcher.Constraint("Tangent", 5, 2, 6, 2))
sketch11.addConstraint(Sketcher.Constraint("Tangent", 6, 1, 7, 1))
sketch11.addConstraint(Sketcher.Constraint("Coincident", 7, 2, 8, 1))
sketch11.addConstraint(Sketcher.Constraint("Coincident", 8, 2, 0, 1))
sketch11.addConstraint(Sketcher.Constraint("Coincident", 9, 2, 10, 1))
sketch11.addConstraint(Sketcher.Constraint("Coincident", 10, 2, 11, 1))
sketch11.addConstraint(Sketcher.Constraint("Tangent", 11, 2, 12, 2))
sketch11.addConstraint(Sketcher.Constraint("Tangent", 12, 1, 13, 1))
sketch11.addConstraint(Sketcher.Constraint("Tangent", 13, 2, 14, 2))
sketch11.addConstraint(Sketcher.Constraint("Tangent", 14, 1, 15, 1))
sketch11.addConstraint(Sketcher.Constraint("Tangent", 15, 2, 16, 2))
sketch11.addConstraint(Sketcher.Constraint("Tangent", 16, 1, 17, 1))
sketch11.addConstraint(Sketcher.Constraint("Coincident", 17, 2, 9, 1))
sketch11.addConstraint(Sketcher.Constraint("Vertical", 0))
sketch11.addConstraint(Sketcher.Constraint("Horizontal", 1))
sketch11.addConstraint(Sketcher.Constraint("Vertical", 3))
sketch11.addConstraint(Sketcher.Constraint("Horizontal", 5))
sketch11.addConstraint(Sketcher.Constraint("Vertical", 7))
sketch11.addConstraint(Sketcher.Constraint("Horizontal", 8))
sketch11.addConstraint(Sketcher.Constraint("Vertical", 9))
sketch11.addConstraint(Sketcher.Constraint("Horizontal", 10))
sketch11.addConstraint(Sketcher.Constraint("Vertical", 11))
sketch11.addConstraint(Sketcher.Constraint("Horizontal", 13))
sketch11.addConstraint(Sketcher.Constraint("Vertical", 15))
sketch11.addConstraint(Sketcher.Constraint("Horizontal", 17))
sketch11.addConstraint(Sketcher.Constraint("Equal", 2, 4))
sketch11.addConstraint(Sketcher.Constraint("Equal", 6, 12))
sketch11.addConstraint(Sketcher.Constraint("Equal", 4, 14))
sketch11.addConstraint(Sketcher.Constraint("Equal", 14, 16))
sketch11.addConstraint(Sketcher.Constraint("Horizontal", 6, 3, 12, 3))
sketch11.addConstraint(Sketcher.Constraint("Horizontal", 2, 3, 16, 3))
sketch11.addConstraint(Sketcher.Constraint("Horizontal", 8, 2, 9, 2))
sketch11.addConstraint(Sketcher.Constraint("Equal", 5, 13))
sketch11.addConstraint(Sketcher.Constraint("Radius", 2, 0.9))
sketch11.addConstraint(Sketcher.Constraint("Radius", 6, 1.9))
sketch11.addConstraint(Sketcher.Constraint("DistanceX", 8, 1, 8, 2, 4.0))
sketch11.addConstraint(Sketcher.Constraint("DistanceX", 1, 1, 1, 2, 4.1))
sketch11.addConstraint(Sketcher.Constraint("DistanceX", 10, 1, 10, 2, 4.3))
sketch11.addConstraint(Sketcher.Constraint("DistanceY", 3, 2, 3, 1, 0.2))
sketch11.addConstraint(Sketcher.Constraint("DistanceX", 9, 2, -1, 1, 4.0))
sketch11.addConstraint(Sketcher.Constraint("DistanceX", 12, 3, 6, 3, 24.0))
sketch11.addConstraint(Sketcher.Constraint("DistanceY", 0, 2, 0, 1, 9.83))
sketch11.addConstraint(Sketcher.Constraint("DistanceY", 2, 3, -1, 1, 101.6))
pad5 = body.newObject("PartDesign::Pad", "Pad004")
pad5.Profile = sketch11
pad5.Type = "TwoLengths"
pad5.Length = 40
pad5.Length2 = 70
pad5.Reversed = True

sketch12 = body.newObject("Sketcher::SketchObject", "Sketch011")
sketch12.AttachmentSupport = (doc.getObject("XZ_Plane"), [""])
sketch12.MapMode = "FlatFace"
sketch12.AttachmentOffset = App.Placement(V(0, 0, -24.5), App.Rotation())
sketch12.addGeometry(Part.LineSegment(V(-2.5, -90.87, 0), V(-42.5, -90.87, 0)), False)
sketch12.addGeometry(Part.BSplineCurve([V(-42.5, -90.87, 0), V(-9.080607, -90.092835, 0), V(-2.5, -86.87, 0)], [3, 3], [0, 1], False, 2, [1, 1, 1], False), False)
sketch12.addGeometry(Part.LineSegment(V(-2.5, -86.87, 0), V(-2.5, -90.87, 0)), False)
sketch12.addConstraint(Sketcher.Constraint("Block", 1))
sketch12.addConstraint(Sketcher.Constraint("Coincident", 0, 2, 1, 1))
sketch12.addConstraint(Sketcher.Constraint("Coincident", 1, 2, 2, 1))
sketch12.addConstraint(Sketcher.Constraint("Coincident", 2, 2, 0, 1))
sketch12.addConstraint(Sketcher.Constraint("Horizontal", 0))
sketch12.addConstraint(Sketcher.Constraint("Vertical", 2))
pad6 = body.newObject("PartDesign::Pad", "Pad005")
pad6.Profile = sketch12
pad6.Length = 4

sketch13 = body.newObject("Sketcher::SketchObject", "Sketch012")
sketch13.AttachmentSupport = (doc.getObject("XZ_Plane"), [""])
sketch13.MapMode = "FlatFace"
sketch13.AttachmentOffset = App.Placement(V(0, 0, 4), App.Rotation())
sketch13.addGeometry(Part.LineSegment(V(-2.5, -90.87, 0), V(-2.5, -86.87, 0)), False)
sketch13.addGeometry(Part.BSplineCurve([V(-42.5, -90.87, 0), V(-8.320155, -89.830707, 0), V(-2.5, -86.87, 0)], [3, 3], [0, 1], False, 2, [1, 1, 1], False), False)
sketch13.addGeometry(Part.LineSegment(V(-42.5, -90.87, 0), V(-2.5, -90.87, 0)), False)
sketch13.addConstraint(Sketcher.Constraint("Block", 1))
sketch13.addConstraint(Sketcher.Constraint("Coincident", 0, 2, 1, 2))
sketch13.addConstraint(Sketcher.Constraint("Coincident", 1, 1, 2, 1))
sketch13.addConstraint(Sketcher.Constraint("Coincident", 2, 2, 0, 1))
sketch13.addConstraint(Sketcher.Constraint("Vertical", 0))
sketch13.addConstraint(Sketcher.Constraint("Horizontal", 2))
pad7 = body.newObject("PartDesign::Pad", "Pad006")
pad7.Profile = sketch13
pad7.Length = 4
pad7.Reversed = True

sketch14 = body.newObject("Sketcher::SketchObject", "Sketch013")
sketch14.AttachmentSupport = (doc.getObject("XZ_Plane"), [""])
sketch14.MapMode = "FlatFace"
sketch14.AttachmentOffset = App.Placement(V(0, 0, 4), App.Rotation())
sketch14.addGeometry(Part.LineSegment(V(57.5, -86.87, 0), V(57.5, -90.87, 0)), False)
sketch14.addGeometry(Part.LineSegment(V(57.5, -90.87, 0), V(67.5, -90.87, 0)), False)
sketch14.addGeometry(Part.BSplineCurve([V(57.5, -86.87, 0), V(60.425368, -89.995002, 0), V(67.5, -90.87, 0)], [3, 3], [0, 1], False, 2, [1, 1, 1], False), False)
sketch14.addConstraint(Sketcher.Constraint("Block", 2))
sketch14.addConstraint(Sketcher.Constraint("Coincident", 0, 2, 1, 1))
sketch14.addConstraint(Sketcher.Constraint("Coincident", 1, 2, 2, 2))
sketch14.addConstraint(Sketcher.Constraint("Coincident", 2, 1, 0, 1))
sketch14.addConstraint(Sketcher.Constraint("Vertical", 0))
sketch14.addConstraint(Sketcher.Constraint("Horizontal", 1))
pad8 = body.newObject("PartDesign::Pad", "Pad007")
pad8.Profile = sketch14
pad8.Length = 28.4
pad8.Reversed = True

sketch15 = body.newObject("Sketcher::SketchObject", "Sketch014")
sketch15.AttachmentSupport = (doc.getObject("YZ_Plane"), [""])
sketch15.MapMode = "FlatFace"
sketch15.addGeometry(Part.LineSegment(V(4, -46.7, 0), V(4, -35.1, 0)), False)
sketch15.addGeometry(Part.ArcOfCircle(Part.Circle(V(7, -35.1, 0), V(0, 0, 1), 3), math.radians(90), math.radians(180)), False)
sketch15.addGeometry(Part.LineSegment(V(7, -32.1, 0), V(13.5, -32.1, 0)), False)
sketch15.addGeometry(Part.ArcOfCircle(Part.Circle(V(13.5, -35.1, 0), V(0, 0, 1), 3), math.radians(0), math.radians(90)), False)
sketch15.addGeometry(Part.LineSegment(V(16.5, -35.1, 0), V(16.5, -46.7, 0)), False)
sketch15.addGeometry(Part.ArcOfCircle(Part.Circle(V(13.5, -46.7, 0), V(0, 0, 1), 3), math.radians(-90), math.radians(0)), False)
sketch15.addGeometry(Part.LineSegment(V(13.5, -49.7, 0), V(7, -49.7, 0)), False)
sketch15.addGeometry(Part.ArcOfCircle(Part.Circle(V(7, -46.7, 0), V(0, 0, 1), 3), math.radians(180), math.radians(270)), False)
sketch15.addConstraint(Sketcher.Constraint("Tangent", 0, 2, 1, 2))
sketch15.addConstraint(Sketcher.Constraint("Tangent", 1, 1, 2, 1))
sketch15.addConstraint(Sketcher.Constraint("Tangent", 2, 2, 3, 2))
sketch15.addConstraint(Sketcher.Constraint("Tangent", 3, 1, 4, 1))
sketch15.addConstraint(Sketcher.Constraint("Tangent", 4, 2, 5, 2))
sketch15.addConstraint(Sketcher.Constraint("Tangent", 5, 1, 6, 1))
sketch15.addConstraint(Sketcher.Constraint("Tangent", 6, 2, 7, 2))
sketch15.addConstraint(Sketcher.Constraint("Tangent", 7, 1, 0, 1))
sketch15.addConstraint(Sketcher.Constraint("Vertical", 0))
sketch15.addConstraint(Sketcher.Constraint("Horizontal", 2))
sketch15.addConstraint(Sketcher.Constraint("Vertical", 4))
sketch15.addConstraint(Sketcher.Constraint("Horizontal", 6))
sketch15.addConstraint(Sketcher.Constraint("Equal", 1, 3))
sketch15.addConstraint(Sketcher.Constraint("Equal", 3, 5))
sketch15.addConstraint(Sketcher.Constraint("Equal", 5, 7))
sketch15.addConstraint(Sketcher.Constraint("Radius", 1, 3.0))
sketch15.addConstraint(Sketcher.Constraint("DistanceX", 2, 1, 2, 2, 6.5))
sketch15.addConstraint(Sketcher.Constraint("DistanceX", -1, 1, 1, 3, 7.0))
sketch15.addConstraint(Sketcher.Constraint("DistanceY", 0, 1, 0, 2, 11.620914))
sketch15.addConstraint(Sketcher.Constraint("DistanceY", 1, 3, -1, 1, 35.10033))
pocket7 = body.newObject("PartDesign::Pocket", "Pocket006")
pocket7.Profile = sketch15
pocket7.Length = 3
pocket7.Reversed = True

doc.recompute()
